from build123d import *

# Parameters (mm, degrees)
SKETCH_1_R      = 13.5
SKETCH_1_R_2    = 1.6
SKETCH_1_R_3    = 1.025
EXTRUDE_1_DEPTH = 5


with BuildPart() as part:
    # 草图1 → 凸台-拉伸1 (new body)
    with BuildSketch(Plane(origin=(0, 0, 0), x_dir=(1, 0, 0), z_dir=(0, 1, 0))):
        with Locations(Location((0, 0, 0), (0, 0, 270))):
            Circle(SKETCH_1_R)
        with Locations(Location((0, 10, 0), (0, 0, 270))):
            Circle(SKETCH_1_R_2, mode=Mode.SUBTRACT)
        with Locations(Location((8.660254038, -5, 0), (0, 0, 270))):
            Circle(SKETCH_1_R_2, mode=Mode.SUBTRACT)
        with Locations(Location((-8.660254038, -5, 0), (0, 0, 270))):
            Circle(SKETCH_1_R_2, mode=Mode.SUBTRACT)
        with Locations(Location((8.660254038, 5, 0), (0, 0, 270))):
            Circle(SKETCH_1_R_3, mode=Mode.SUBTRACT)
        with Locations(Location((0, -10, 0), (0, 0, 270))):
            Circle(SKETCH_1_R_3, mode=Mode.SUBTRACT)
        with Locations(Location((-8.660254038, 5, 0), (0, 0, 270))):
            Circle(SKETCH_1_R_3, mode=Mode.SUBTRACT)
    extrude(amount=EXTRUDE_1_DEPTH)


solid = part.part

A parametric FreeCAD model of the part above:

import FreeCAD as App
import Part
import Sketcher
Q = App.Units.Quantity

doc = App.newDocument("Part")
body = doc.addObject("PartDesign::Body", "Body")

sketch1 = doc.addObject("Sketcher::SketchObject", "Sketch")
body.addObject(sketch1)
sketch1.AttachmentSupport = (doc.XZ_Plane, [""])
sketch1.MapMode = "FlatFace"
sketch1.addGeometry([
    Part.Circle(App.Vector(0, 0, 0), App.Vector(0, 0, 1), 13.5),
    Part.Circle(App.Vector(-8.7, -5, 0), App.Vector(0, 0, 1), 1),
    Part.Circle(App.Vector(0, -10, 0), App.Vector(0, 0, 1), 1.6),
    Part.Circle(App.Vector(-8.7, 5, 0), App.Vector(0, 0, 1), 1.6),
    Part.Circle(App.Vector(8.7, -5, 0), App.Vector(0, 0, 1), 1),
    Part.Circle(App.Vector(0, 10, 0), App.Vector(0, 0, 1), 1),
    Part.Circle(App.Vector(8.7, 5, 0), App.Vector(0, 0, 1), 1.6),
], False)
sketch1.addConstraint([
    Sketcher.Constraint("Coincident", 0, 3, -1, 1),
    Sketcher.Constraint("Equal", 2, 3),
    Sketcher.Constraint("Equal", 1, 4),
    Sketcher.Constraint("Equal", 4, 5),
    Sketcher.Constraint("Equal", 3, 6),
    Sketcher.Constraint("Symmetric", 3, 3, 4, 3, -1, 1),
    Sketcher.Constraint("Symmetric", 2, 3, 5, 3, -1, 1),
    Sketcher.Constraint("Symmetric", 1, 3, 6, 3, -1, 1),
    Sketcher.Constraint("Symmetric", 1, 3, 4, 3, -2),
    Sketcher.Constraint("PointOnObject", 2, 3, -2),
    Sketcher.Constraint("Diameter", 0, Q("27 mm")),
    Sketcher.Constraint("Diameter", 2, Q("3.2 mm")),
    Sketcher.Constraint("Diameter", 1, Q("2.05 mm")),
    Sketcher.Constraint("DistanceY", 1, 3, -1, 1, Q("5 mm")),
    Sketcher.Constraint("DistanceY", 2, 3, -1, 1, Q("10 mm")),
    Sketcher.Constraint("DistanceX", 1, 3, 4, 3, Q("17.320508 mm")),
])
pad1 = doc.addObject("PartDesign::Pad", "Pad")
body.addObject(pad1)
pad1.Profile = sketch1
pad1.Length = 5
pad1.Reversed = True

doc.recompute()
